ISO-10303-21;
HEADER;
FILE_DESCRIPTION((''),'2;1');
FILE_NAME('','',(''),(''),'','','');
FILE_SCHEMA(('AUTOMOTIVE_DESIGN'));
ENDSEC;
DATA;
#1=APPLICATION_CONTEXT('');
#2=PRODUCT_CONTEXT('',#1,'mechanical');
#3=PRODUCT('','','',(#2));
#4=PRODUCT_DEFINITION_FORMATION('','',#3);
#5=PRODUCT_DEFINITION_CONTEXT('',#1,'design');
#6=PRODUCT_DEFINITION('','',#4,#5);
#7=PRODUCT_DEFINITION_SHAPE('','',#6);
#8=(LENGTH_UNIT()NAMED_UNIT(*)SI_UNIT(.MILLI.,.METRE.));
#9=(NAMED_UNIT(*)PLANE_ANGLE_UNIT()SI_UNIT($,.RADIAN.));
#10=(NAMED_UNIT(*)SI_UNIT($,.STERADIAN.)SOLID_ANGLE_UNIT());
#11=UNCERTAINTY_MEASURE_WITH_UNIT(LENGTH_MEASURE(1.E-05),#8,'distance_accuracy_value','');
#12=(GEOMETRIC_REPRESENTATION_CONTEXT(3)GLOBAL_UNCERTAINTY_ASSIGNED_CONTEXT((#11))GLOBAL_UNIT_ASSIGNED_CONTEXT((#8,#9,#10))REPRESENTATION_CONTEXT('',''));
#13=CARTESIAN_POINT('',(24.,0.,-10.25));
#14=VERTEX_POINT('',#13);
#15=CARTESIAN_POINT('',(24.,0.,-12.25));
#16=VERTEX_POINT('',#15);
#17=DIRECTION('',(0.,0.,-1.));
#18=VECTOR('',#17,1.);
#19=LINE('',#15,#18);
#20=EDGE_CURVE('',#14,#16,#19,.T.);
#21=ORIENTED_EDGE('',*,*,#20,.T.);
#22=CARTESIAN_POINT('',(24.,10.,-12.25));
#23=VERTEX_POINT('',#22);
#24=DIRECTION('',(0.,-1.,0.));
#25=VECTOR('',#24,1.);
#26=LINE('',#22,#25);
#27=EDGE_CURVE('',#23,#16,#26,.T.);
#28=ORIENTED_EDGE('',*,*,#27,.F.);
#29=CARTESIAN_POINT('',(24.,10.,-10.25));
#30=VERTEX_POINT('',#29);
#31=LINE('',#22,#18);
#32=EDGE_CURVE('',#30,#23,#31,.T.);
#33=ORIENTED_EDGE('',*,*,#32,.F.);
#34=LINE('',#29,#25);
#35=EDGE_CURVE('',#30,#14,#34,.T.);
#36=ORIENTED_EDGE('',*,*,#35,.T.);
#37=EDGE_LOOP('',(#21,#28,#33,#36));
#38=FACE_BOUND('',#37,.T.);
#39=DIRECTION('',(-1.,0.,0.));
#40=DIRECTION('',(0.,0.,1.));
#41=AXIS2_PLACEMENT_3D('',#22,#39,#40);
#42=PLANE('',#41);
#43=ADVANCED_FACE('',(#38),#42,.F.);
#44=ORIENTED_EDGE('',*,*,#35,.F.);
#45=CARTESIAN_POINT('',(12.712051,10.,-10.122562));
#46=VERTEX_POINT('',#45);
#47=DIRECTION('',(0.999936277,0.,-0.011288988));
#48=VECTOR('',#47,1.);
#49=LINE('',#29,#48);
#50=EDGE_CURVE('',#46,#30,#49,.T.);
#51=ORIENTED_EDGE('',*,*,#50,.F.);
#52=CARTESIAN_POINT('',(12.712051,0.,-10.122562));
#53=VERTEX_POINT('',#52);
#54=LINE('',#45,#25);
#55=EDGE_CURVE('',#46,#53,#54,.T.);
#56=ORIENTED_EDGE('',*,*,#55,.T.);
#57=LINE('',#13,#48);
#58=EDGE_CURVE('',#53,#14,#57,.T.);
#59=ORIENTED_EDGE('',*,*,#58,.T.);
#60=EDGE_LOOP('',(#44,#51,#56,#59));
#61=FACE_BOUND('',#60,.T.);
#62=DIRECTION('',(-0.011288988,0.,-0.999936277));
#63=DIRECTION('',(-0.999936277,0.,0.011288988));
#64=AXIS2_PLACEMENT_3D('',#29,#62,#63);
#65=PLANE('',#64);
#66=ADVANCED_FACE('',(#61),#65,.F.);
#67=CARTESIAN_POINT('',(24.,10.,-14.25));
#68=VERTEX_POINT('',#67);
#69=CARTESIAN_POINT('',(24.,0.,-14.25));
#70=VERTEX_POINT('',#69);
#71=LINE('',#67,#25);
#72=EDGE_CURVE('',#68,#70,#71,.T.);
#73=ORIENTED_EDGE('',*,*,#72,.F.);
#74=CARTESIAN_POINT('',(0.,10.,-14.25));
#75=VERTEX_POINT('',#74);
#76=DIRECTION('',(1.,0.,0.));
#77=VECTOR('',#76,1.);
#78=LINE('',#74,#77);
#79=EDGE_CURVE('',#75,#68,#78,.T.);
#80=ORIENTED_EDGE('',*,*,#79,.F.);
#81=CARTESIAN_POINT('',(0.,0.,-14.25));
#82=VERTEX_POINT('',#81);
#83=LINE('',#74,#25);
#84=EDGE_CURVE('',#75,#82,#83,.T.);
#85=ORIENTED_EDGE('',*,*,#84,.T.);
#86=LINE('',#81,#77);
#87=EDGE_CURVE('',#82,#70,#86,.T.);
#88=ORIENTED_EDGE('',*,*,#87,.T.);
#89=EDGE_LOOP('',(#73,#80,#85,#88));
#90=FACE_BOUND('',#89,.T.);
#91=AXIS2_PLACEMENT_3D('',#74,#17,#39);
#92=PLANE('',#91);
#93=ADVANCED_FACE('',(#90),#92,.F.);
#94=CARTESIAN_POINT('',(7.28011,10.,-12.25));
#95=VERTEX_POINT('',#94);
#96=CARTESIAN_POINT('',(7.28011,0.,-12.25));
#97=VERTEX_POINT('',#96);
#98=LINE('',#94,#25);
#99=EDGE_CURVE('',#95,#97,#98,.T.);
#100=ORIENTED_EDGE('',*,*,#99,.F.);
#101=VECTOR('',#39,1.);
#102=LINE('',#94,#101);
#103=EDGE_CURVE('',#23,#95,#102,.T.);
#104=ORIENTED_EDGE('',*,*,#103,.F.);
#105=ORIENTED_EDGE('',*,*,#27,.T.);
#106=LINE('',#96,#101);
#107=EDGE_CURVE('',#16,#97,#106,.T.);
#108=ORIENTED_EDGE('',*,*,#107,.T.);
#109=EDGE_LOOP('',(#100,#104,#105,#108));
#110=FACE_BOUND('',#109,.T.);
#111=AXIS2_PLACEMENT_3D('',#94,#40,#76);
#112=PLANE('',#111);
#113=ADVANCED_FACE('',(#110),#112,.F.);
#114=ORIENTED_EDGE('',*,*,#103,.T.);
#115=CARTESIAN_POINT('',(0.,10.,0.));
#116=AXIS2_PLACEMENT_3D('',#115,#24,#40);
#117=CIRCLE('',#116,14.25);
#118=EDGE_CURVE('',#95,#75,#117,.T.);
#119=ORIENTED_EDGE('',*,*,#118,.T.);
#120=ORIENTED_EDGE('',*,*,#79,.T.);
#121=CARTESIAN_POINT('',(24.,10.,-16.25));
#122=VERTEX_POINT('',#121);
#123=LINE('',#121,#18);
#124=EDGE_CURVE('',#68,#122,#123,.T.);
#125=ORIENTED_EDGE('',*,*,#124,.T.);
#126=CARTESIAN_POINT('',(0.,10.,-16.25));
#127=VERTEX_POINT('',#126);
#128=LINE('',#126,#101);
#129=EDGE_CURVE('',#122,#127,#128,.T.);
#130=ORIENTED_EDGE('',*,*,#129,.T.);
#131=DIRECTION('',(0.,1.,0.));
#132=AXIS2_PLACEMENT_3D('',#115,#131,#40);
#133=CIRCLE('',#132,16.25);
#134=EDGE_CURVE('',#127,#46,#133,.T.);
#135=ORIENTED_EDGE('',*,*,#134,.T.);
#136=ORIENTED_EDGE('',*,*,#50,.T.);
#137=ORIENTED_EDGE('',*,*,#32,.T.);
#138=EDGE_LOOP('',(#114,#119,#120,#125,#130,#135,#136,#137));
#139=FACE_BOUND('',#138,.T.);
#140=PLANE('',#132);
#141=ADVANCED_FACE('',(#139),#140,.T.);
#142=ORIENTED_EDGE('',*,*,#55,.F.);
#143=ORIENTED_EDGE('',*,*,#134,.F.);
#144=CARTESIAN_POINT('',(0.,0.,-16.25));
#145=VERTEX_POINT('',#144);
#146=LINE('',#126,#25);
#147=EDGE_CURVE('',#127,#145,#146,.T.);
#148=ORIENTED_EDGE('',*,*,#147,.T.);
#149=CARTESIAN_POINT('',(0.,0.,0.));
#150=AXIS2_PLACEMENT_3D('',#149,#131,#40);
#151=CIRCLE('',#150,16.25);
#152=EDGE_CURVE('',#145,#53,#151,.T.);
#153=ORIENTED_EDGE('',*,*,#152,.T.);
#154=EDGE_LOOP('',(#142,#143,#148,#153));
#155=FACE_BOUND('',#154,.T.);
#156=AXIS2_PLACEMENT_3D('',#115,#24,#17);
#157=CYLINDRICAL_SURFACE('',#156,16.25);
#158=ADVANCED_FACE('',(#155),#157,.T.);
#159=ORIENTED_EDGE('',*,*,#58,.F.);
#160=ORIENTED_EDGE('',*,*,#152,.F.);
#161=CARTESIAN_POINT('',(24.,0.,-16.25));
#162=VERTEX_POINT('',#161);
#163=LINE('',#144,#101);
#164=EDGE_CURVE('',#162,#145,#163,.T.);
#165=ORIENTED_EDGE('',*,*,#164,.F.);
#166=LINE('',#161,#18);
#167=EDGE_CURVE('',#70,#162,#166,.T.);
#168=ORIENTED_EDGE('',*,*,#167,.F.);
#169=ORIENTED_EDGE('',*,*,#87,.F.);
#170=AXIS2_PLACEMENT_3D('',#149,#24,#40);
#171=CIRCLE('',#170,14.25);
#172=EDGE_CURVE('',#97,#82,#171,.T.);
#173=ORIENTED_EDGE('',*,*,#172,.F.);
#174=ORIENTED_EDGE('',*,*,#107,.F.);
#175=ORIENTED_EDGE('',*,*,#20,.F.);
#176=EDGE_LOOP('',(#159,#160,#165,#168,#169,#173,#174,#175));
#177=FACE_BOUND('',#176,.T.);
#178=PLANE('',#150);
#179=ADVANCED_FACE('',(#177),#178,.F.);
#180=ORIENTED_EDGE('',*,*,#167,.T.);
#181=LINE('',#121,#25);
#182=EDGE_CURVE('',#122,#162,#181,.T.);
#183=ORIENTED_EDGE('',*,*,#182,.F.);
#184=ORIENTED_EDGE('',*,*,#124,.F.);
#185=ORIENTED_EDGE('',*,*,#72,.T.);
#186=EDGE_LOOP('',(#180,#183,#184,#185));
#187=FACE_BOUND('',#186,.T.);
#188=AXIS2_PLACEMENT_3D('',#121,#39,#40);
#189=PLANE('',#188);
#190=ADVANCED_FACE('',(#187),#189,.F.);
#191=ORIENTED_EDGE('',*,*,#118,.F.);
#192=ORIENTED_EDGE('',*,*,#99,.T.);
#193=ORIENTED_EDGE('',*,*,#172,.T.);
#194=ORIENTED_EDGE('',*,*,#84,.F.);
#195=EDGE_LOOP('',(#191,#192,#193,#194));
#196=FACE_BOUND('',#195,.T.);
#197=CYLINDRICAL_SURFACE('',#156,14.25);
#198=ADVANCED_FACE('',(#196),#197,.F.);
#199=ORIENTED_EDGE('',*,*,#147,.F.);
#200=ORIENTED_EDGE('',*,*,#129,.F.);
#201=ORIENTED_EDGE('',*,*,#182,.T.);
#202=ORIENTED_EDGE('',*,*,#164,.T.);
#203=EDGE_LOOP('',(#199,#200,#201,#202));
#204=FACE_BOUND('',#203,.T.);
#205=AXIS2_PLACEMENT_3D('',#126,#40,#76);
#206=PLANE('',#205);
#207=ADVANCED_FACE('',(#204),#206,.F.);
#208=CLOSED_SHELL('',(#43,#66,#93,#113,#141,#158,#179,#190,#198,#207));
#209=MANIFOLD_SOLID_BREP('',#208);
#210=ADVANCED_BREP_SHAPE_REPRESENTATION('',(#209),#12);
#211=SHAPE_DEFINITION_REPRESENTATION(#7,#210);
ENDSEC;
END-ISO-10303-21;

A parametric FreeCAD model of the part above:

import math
import FreeCAD as App
import Part
import Sketcher

doc = App.newDocument("Part")
params = doc.addObject("Spreadsheet::Sheet", "Params")
for row, (alias, value) in enumerate([
    ("sketch1_width", "24 mm"),
    ("sketch1_height", "2 mm"),
    ("sketch1_radius", "14.25 mm"),
    ("pad1_length", "10 mm"),
], start=1):
    params.set(f"A{row}", alias)
    params.set(f"B{row}", "=" + value)
    params.setAlias(f"B{row}", alias)

body = doc.addObject("PartDesign::Body", "Body")

# Sketch on XZ plane
sketch1 = doc.addObject("Sketcher::SketchObject", "Sketch")
body.addObject(sketch1)
sketch1.AttachmentSupport = (doc.XZ_Plane, [""])
sketch1.MapMode = "FlatFace"
sketch1.addGeometry(Part.LineSegment(App.Vector(24, -12.2, 0), App.Vector(7.3, -12.2, 0)), False)
sketch1.addGeometry(Part.ArcOfCircle(Part.Circle(App.Vector(0, 0, 0), App.Vector(0, 0, 1), 14.2), math.radians(-59), math.radians(270)), False)
sketch1.addGeometry(Part.LineSegment(App.Vector(0, -14.2, 0), App.Vector(24, -14.2, 0)), False)
sketch1.addGeometry(Part.LineSegment(App.Vector(24, -14.2, 0), App.Vector(24, -16.2, 0)), False)
sketch1.addGeometry(Part.LineSegment(App.Vector(24, -16.2, 0), App.Vector(0, -16.2, 0)), False)
sketch1.addGeometry(Part.ArcOfCircle(Part.Circle(App.Vector(0, 0, 0), App.Vector(0, 0, 1), 16.2), math.radians(-39), math.radians(270)), False)
sketch1.addGeometry(Part.LineSegment(App.Vector(12.7, -10.1, 0), App.Vector(24, -10.2, 0)), False)
sketch1.addGeometry(Part.LineSegment(App.Vector(24, -10.2, 0), App.Vector(24, -12.2, 0)), False)
sketch1.addConstraint(Sketcher.Constraint("Coincident", 0, 2, 1, 1))
sketch1.addConstraint(Sketcher.Constraint("Tangent", 1, 2, 2, 1))
sketch1.addConstraint(Sketcher.Constraint("Coincident", 2, 2, 3, 1))
sketch1.addConstraint(Sketcher.Constraint("Coincident", 3, 2, 4, 1))
sketch1.addConstraint(Sketcher.Constraint("Tangent", 4, 2, 5, 2))
sketch1.addConstraint(Sketcher.Constraint("Coincident", 5, 1, 6, 1))
sketch1.addConstraint(Sketcher.Constraint("Coincident", 6, 2, 7, 1))
sketch1.addConstraint(Sketcher.Constraint("Coincident", 7, 2, 0, 1))
sketch1.addConstraint(Sketcher.Constraint("Horizontal", 0))
sketch1.addConstraint(Sketcher.Constraint("Horizontal", 2))
sketch1.addConstraint(Sketcher.Constraint("Vertical", 3))
sketch1.addConstraint(Sketcher.Constraint("Horizontal", 4))
sketch1.addConstraint(Sketcher.Constraint("Vertical", 7))
sketch1.addConstraint(Sketcher.Constraint("Coincident", 1, 3, -1, 1))
sketch1.addConstraint(Sketcher.Constraint("Coincident", 5, 3, -1, 1))
sketch1.addConstraint(Sketcher.Constraint("Vertical", 3, 2, 6, 2))
sketch1.addConstraint(Sketcher.Constraint("Equal", 3, 7))
sketch1.addConstraint(Sketcher.Constraint("DistanceX", 2, 1, 2, 2, 24.0))
sketch1.addConstraint(Sketcher.Constraint("DistanceY", 3, 2, 3, 1, 2.0))
sketch1.addConstraint(Sketcher.Constraint("Radius", 1, 14.25))
sketch1.addConstraint(Sketcher.Constraint("DistanceY", 1, 2, 0, 2, 2.0))
sketch1.addConstraint(Sketcher.Constraint("Distance", 6, 11.288669))
sketch1.setExpression("Constraints[17]", "Params.sketch1_width")
sketch1.setExpression("Constraints[18]", "Params.sketch1_height")
sketch1.setExpression("Constraints[19]", "Params.sketch1_radius")
pad1 = doc.addObject("PartDesign::Pad", "Pad")
body.addObject(pad1)
pad1.Profile = sketch1
pad1.setExpression("Length", "Params.pad1_length")
pad1.Reversed = True

doc.recompute()
